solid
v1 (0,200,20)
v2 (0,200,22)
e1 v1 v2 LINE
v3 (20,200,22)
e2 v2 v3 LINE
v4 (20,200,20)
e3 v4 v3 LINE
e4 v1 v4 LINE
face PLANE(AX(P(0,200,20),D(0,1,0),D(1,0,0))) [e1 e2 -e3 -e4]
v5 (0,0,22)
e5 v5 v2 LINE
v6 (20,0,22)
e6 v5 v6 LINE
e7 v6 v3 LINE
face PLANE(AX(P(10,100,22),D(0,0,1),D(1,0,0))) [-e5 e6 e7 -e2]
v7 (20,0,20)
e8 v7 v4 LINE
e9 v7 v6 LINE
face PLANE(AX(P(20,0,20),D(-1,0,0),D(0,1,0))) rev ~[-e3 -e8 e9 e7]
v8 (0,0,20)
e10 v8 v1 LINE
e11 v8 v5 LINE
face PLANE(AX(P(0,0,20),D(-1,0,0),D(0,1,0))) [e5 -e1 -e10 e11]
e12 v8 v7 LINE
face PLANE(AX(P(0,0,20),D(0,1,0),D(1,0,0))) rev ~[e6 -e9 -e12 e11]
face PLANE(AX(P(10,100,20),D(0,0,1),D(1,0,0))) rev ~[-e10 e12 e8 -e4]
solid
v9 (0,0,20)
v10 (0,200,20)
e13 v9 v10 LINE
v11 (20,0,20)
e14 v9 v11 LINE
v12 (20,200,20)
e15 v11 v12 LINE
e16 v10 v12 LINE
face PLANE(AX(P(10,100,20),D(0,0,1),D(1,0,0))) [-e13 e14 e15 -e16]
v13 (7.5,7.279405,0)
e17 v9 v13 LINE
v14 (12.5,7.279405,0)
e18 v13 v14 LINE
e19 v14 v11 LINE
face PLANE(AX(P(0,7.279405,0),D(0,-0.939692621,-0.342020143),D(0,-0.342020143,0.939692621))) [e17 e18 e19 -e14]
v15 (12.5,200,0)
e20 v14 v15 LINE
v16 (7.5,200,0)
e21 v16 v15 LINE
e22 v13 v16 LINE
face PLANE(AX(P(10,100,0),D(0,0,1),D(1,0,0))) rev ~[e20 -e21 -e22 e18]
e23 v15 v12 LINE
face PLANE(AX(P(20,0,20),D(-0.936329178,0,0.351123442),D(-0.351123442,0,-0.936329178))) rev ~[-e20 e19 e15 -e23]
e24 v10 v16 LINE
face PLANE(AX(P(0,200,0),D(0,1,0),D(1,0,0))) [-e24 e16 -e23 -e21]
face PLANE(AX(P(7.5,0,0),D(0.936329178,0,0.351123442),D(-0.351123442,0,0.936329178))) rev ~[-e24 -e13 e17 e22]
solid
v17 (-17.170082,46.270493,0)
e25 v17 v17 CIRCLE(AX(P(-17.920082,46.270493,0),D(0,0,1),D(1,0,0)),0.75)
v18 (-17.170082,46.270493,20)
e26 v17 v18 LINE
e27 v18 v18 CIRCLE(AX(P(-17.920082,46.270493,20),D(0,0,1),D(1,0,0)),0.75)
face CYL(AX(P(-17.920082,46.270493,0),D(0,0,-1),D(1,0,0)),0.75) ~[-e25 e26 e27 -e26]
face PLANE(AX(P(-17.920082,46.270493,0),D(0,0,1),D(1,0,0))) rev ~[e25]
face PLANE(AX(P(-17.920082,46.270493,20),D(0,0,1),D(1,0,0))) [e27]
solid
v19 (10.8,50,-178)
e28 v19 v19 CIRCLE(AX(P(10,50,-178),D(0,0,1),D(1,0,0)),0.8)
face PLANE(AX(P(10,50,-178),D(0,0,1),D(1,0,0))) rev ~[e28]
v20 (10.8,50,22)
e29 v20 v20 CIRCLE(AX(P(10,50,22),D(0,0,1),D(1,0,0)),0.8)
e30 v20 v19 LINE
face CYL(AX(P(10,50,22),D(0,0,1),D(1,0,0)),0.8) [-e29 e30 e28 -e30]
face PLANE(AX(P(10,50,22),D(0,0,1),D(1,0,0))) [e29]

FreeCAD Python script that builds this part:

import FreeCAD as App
import Part
import Sketcher

V = App.Vector
Q = App.Units.Quantity


def add_polygon(sketch, points):
    """Adds a closed chain of lines whose ends are joined by coincident constraints."""
    first, n = sketch.GeometryCount, len(points)
    for a, b in zip(points, points[1:] + points[:1]):
        sketch.addGeometry(Part.LineSegment(App.Vector(*a, 0), App.Vector(*b, 0)), False)
    for i in range(n):
        sketch.addConstraint(Sketcher.Constraint("Coincident", first + i, 2, first + (i + 1) % n, 1))

doc = App.newDocument("Part")
body = doc.addObject("PartDesign::Body", "Body")

# Sketch on XY plane
sketch1 = body.newObject("Sketcher::SketchObject", "Sketch")
sketch1.AttachmentSupport = (doc.getObject("XY_Plane"), [""])
sketch1.MapMode = "FlatFace"
add_polygon(sketch1, [(0, 200), (0, 0), (20, 0), (20, 200)])  # lines 0-3
sketch1.addConstraint([
    Sketcher.Constraint("Vertical", 0),
    Sketcher.Constraint("Horizontal", 1),
    Sketcher.Constraint("Vertical", 2),
    Sketcher.Constraint("Horizontal", 3),
    Sketcher.Constraint("Coincident", 0, 2, -1, 1),
    Sketcher.Constraint("DistanceX", 1, 1, 1, 2, Q("20 mm")),
    Sketcher.Constraint("DistanceY", 0, 2, 0, 1, Q("200 mm")),
])
pad1 = body.newObject("PartDesign::Pad", "Pad")
pad1.Profile = sketch1
pad1.Length = 20

# Sketch on XZ plane
sketch2 = body.newObject("Sketcher::SketchObject", "Sketch001")
sketch2.AttachmentSupport = (doc.getObject("XZ_Plane"), [""])
sketch2.MapMode = "FlatFace"
add_polygon(sketch2, [(7.5, 0), (0, 20), (0, 0)])  # lines 0-2
add_polygon(sketch2, [(20, 20), (12.5, 0), (20, 0)])  # lines 3-5
sketch2.addConstraint([
    Sketcher.Constraint("Vertical", 1),
    Sketcher.Constraint("Horizontal", 2),
    Sketcher.Constraint("Horizontal", 4),
    Sketcher.Constraint("Vertical", 5),
    Sketcher.Constraint("Coincident", 1, 2, -1, 1),
    Sketcher.Constraint("PointOnObject", 3, 2, -1),
    Sketcher.Constraint("Horizontal", 0, 2, 5, 2),
    Sketcher.Constraint("Equal", 2, 4),
    Sketcher.Constraint("DistanceY", 1, 2, 1, 1, Q("20 mm")),
    Sketcher.Constraint("DistanceX", 2, 1, 2, 2, Q("7.5 mm")),
    Sketcher.Constraint("DistanceX", -1, 1, 4, 2, Q("20 mm")),
])
pocket1 = body.newObject("PartDesign::Pocket", "Pocket")
pocket1.Profile = sketch2
pocket1.Type = "ThroughAll"

# Sketch on YZ plane
sketch3 = body.newObject("Sketcher::SketchObject", "Sketch002")
sketch3.AttachmentSupport = (doc.getObject("YZ_Plane"), [""])
sketch3.MapMode = "FlatFace"
add_polygon(sketch3, [(0, 20), (0, 0), (7.279405, 0)])  # lines 0-2
sketch3.addConstraint([
    Sketcher.Constraint("Vertical", 0),
    Sketcher.Constraint("Horizontal", 1),
    Sketcher.Constraint("Coincident", 0, 2, -1, 1),
    Sketcher.Constraint("DistanceY", 0, 2, 0, 1, Q("20 mm")),
    Sketcher.Constraint("Angle", 2, Q("110 deg")),
])
pocket2 = body.newObject("PartDesign::Pocket", "Pocket001")
pocket2.Profile = sketch3
pocket2.Type = "ThroughAll"
pocket2.Reversed = True
body2 = doc.addObject("PartDesign::Body", "Body001")

# Sketch on XY plane
sketch4 = body2.newObject("Sketcher::SketchObject", "Sketch003")
sketch4.AttachmentSupport = (doc.getObject("XY_Plane001"), [""])
sketch4.MapMode = "FlatFace"
sketch4.AttachmentOffset = App.Placement(V(0, 0, 20), App.Rotation())
add_polygon(sketch4, [(0, 200), (0, 0), (20, 0), (20, 200)])  # lines 0-3
sketch4.addConstraint([
    Sketcher.Constraint("Vertical", 0),
    Sketcher.Constraint("Horizontal", 1),
    Sketcher.Constraint("Vertical", 2),
    Sketcher.Constraint("Horizontal", 3),
    Sketcher.Constraint("Coincident", 0, 2, -1, 1),
    Sketcher.Constraint("DistanceX", 1, 1, 1, 2, Q("20 mm")),
    Sketcher.Constraint("DistanceY", 0, 2, 0, 1, Q("200 mm")),
])
pad2 = body2.newObject("PartDesign::Pad", "Pad001")
pad2.Profile = sketch4
pad2.Length = 2
body3 = doc.addObject("PartDesign::Body", "Body002")

# Sketch on XY plane
sketch5 = body3.newObject("Sketcher::SketchObject", "Sketch004")
sketch5.AttachmentSupport = (doc.getObject("XY_Plane002"), [""])
sketch5.MapMode = "FlatFace"
sketch5.AttachmentOffset = App.Placement(V(0, 0, 22), App.Rotation())
sketch5.addGeometry(Part.Circle(V(10, 50, 0), V(0, 0, 1), 0.8), False)
sketch5.addConstraint([
    Sketcher.Constraint("Diameter", 0, Q("1.6 mm")),
    Sketcher.Constraint("DistanceX", -1, 1, 0, 3, Q("10 mm")),
    Sketcher.Constraint("DistanceY", -1, 1, 0, 3, Q("50 mm")),
])
pad3 = body3.newObject("PartDesign::Pad", "Pad002")
pad3.Profile = sketch5
pad3.Length = 200
pad3.Reversed = True
body4 = doc.addObject("PartDesign::Body", "Body003")

# Sketch on XY plane
sketch6 = body4.newObject("Sketcher::SketchObject", "Sketch005")
sketch6.AttachmentSupport = (doc.getObject("XY_Plane003"), [""])
sketch6.MapMode = "FlatFace"
sketch6.addGeometry(Part.Circle(V(-17.920082, 46.270493, 0), V(0, 0, 1), 0.75), False)
sketch6.addConstraint([
    Sketcher.Constraint("Diameter", 0, Q("1.5 mm")),
    Sketcher.Constraint("DistanceX", 0, 3, -1, 1, Q("17.920082 mm")),
    Sketcher.Constraint("DistanceY", -1, 1, 0, 3, Q("46.270493 mm")),
])
pad4 = body4.newObject("PartDesign::Pad", "Pad003")
pad4.Profile = sketch6
pad4.Length = 20

doc.recompute()
